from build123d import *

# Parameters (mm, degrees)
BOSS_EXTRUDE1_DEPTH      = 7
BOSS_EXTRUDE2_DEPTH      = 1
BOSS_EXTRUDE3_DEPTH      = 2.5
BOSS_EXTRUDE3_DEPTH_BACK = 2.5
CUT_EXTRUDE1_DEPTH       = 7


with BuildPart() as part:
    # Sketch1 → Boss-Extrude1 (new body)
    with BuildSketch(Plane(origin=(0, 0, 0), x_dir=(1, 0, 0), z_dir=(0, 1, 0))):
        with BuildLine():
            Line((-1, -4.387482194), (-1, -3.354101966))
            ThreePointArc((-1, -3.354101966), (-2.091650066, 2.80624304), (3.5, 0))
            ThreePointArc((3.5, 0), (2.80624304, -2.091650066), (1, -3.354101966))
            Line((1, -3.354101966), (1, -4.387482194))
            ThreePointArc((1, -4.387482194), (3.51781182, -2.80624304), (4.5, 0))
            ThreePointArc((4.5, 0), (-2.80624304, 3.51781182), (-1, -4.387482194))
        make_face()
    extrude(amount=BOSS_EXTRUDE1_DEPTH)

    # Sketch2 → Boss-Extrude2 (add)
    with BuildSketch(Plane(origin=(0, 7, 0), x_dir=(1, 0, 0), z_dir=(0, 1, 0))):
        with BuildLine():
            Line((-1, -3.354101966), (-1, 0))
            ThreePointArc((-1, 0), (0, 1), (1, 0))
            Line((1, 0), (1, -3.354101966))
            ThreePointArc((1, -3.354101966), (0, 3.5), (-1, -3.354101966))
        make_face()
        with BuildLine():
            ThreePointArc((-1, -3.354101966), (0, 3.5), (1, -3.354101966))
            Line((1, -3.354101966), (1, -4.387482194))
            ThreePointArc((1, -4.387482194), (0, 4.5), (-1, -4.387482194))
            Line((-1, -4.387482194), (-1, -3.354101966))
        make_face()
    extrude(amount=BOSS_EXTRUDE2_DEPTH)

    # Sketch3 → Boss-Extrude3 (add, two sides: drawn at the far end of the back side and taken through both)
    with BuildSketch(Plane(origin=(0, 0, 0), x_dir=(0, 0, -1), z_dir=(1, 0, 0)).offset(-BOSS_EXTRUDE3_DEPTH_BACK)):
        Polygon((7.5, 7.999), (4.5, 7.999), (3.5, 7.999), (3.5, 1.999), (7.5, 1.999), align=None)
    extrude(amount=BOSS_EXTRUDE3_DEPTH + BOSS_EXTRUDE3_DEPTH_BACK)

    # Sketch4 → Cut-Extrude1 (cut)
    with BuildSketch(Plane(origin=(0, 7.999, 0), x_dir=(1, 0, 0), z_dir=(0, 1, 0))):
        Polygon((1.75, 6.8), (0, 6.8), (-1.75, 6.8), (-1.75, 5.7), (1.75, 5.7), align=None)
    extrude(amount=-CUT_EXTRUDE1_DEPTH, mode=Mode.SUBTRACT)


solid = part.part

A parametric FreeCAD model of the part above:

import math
import FreeCAD as App
import Part
import Sketcher

V = App.Vector
Q = App.Units.Quantity

doc = App.newDocument("Part")
body = doc.addObject("PartDesign::Body", "Body")

# Sketch on XZ plane
sketch1 = body.newObject("Sketcher::SketchObject", "Sketch")
sketch1.AttachmentSupport = (doc.getObject("XZ_Plane"), [""])
sketch1.MapMode = "FlatFace"
sketch1.addGeometry(Part.LineSegment(V(-1, 4.4, 0), V(-1, 3.4, 0)), False)
sketch1.addGeometry(Part.ArcOfCircle(Part.Circle(V(0, 0, 0), V(0, 0, 1), 3.5), math.radians(107), math.radians(360)), False)
sketch1.addGeometry(Part.ArcOfCircle(Part.Circle(V(0, 0, 0), V(0, 0, 1), 3.5), math.radians(0), math.radians(73)), False)
sketch1.addGeometry(Part.LineSegment(V(1, 3.4, 0), V(1, 4.4, 0)), False)
sketch1.addGeometry(Part.ArcOfCircle(Part.Circle(V(0, 0, 0), V(0, 0, 1), 4.5), math.radians(0), math.radians(77)), False)
sketch1.addGeometry(Part.ArcOfCircle(Part.Circle(V(0, 0, 0), V(0, 0, 1), 4.5), math.radians(103), math.radians(360)), False)
sketch1.addConstraint(Sketcher.Constraint("Coincident", 0, 2, 1, 1))
sketch1.addConstraint(Sketcher.Constraint("Tangent", 1, 2, 2, 1))
sketch1.addConstraint(Sketcher.Constraint("Coincident", 2, 2, 3, 1))
sketch1.addConstraint(Sketcher.Constraint("Coincident", 3, 2, 4, 2))
sketch1.addConstraint(Sketcher.Constraint("Tangent", 4, 1, 5, 2))
sketch1.addConstraint(Sketcher.Constraint("Coincident", 5, 1, 0, 1))
sketch1.addConstraint(Sketcher.Constraint("Vertical", 0))
sketch1.addConstraint(Sketcher.Constraint("Vertical", 3))
sketch1.addConstraint(Sketcher.Constraint("Coincident", 1, 3, -1, 1))
sketch1.addConstraint(Sketcher.Constraint("Coincident", 4, 3, -1, 1))
sketch1.addConstraint(Sketcher.Constraint("Equal", 1, 2))
sketch1.addConstraint(Sketcher.Constraint("Equal", 4, 5))
sketch1.addConstraint(Sketcher.Constraint("PointOnObject", 1, 2, -1))
sketch1.addConstraint(Sketcher.Constraint("PointOnObject", 4, 1, -1))
sketch1.addConstraint(Sketcher.Constraint("Horizontal", 0, 2, 2, 2))
sketch1.addConstraint(Sketcher.Constraint("Radius", 1, Q("3.5 mm")))
sketch1.addConstraint(Sketcher.Constraint("Radius", 4, Q("4.5 mm")))
sketch1.addConstraint(Sketcher.Constraint("DistanceX", 0, 2, -1, 1, Q("1 mm")))
pad1 = body.newObject("PartDesign::Pad", "Pad")
pad1.Profile = sketch1
pad1.Length = 7
pad1.Reversed = True

# Sketch on XZ plane
sketch2 = body.newObject("Sketcher::SketchObject", "Sketch001")
sketch2.AttachmentSupport = (doc.getObject("XZ_Plane"), [""])
sketch2.MapMode = "FlatFace"
sketch2.AttachmentOffset = App.Placement(V(0, 0, -7), App.Rotation())
sketch2.addGeometry(Part.ArcOfCircle(Part.Circle(V(0, 0, 0), V(0, 0, 1), 1), math.radians(180), math.radians(360)), False)
sketch2.addGeometry(Part.LineSegment(V(1, 0, 0), V(1, 4.4, 0)), False)
sketch2.addGeometry(Part.ArcOfCircle(Part.Circle(V(0, 0, 0), V(0, 0, 1), 4.5), math.radians(103), math.radians(437)), False)
sketch2.addGeometry(Part.LineSegment(V(-1, 4.4, 0), V(-1, 0, 0)), False)
sketch2.addConstraint(Sketcher.Constraint("Tangent", 0, 2, 1, 1))
sketch2.addConstraint(Sketcher.Constraint("Coincident", 1, 2, 2, 2))
sketch2.addConstraint(Sketcher.Constraint("Coincident", 2, 1, 3, 1))
sketch2.addConstraint(Sketcher.Constraint("Tangent", 3, 2, 0, 1))
sketch2.addConstraint(Sketcher.Constraint("Vertical", 1))
sketch2.addConstraint(Sketcher.Constraint("Vertical", 3))
sketch2.addConstraint(Sketcher.Constraint("Coincident", 0, 3, -1, 1))
sketch2.addConstraint(Sketcher.Constraint("Coincident", 2, 3, -1, 1))
sketch2.addConstraint(Sketcher.Constraint("Radius", 0, Q("1 mm")))
sketch2.addConstraint(Sketcher.Constraint("Radius", 2, Q("4.5 mm")))
pad2 = body.newObject("PartDesign::Pad", "Pad001")
pad2.Profile = sketch2
pad2.Length = 1
pad2.Reversed = True

# Sketch on YZ plane
sketch3 = body.newObject("Sketcher::SketchObject", "Sketch002")
sketch3.AttachmentSupport = (doc.getObject("YZ_Plane"), [""])
sketch3.MapMode = "FlatFace"
sketch3.addGeometry(Part.LineSegment(V(8, -7.5, 0), V(8, -3.5, 0)), False)
sketch3.addGeometry(Part.LineSegment(V(8, -3.5, 0), V(2, -3.5, 0)), False)
sketch3.addGeometry(Part.LineSegment(V(2, -3.5, 0), V(2, -7.5, 0)), False)
sketch3.addGeometry(Part.LineSegment(V(2, -7.5, 0), V(8, -7.5, 0)), False)
sketch3.addConstraint(Sketcher.Constraint("Coincident", 0, 2, 1, 1))
sketch3.addConstraint(Sketcher.Constraint("Coincident", 1, 2, 2, 1))
sketch3.addConstraint(Sketcher.Constraint("Coincident", 2, 2, 3, 1))
sketch3.addConstraint(Sketcher.Constraint("Coincident", 3, 2, 0, 1))
sketch3.addConstraint(Sketcher.Constraint("Vertical", 0))
sketch3.addConstraint(Sketcher.Constraint("Horizontal", 1))
sketch3.addConstraint(Sketcher.Constraint("Vertical", 2))
sketch3.addConstraint(Sketcher.Constraint("Horizontal", 3))
sketch3.addConstraint(Sketcher.Constraint("DistanceX", 1, 2, 1, 1, Q("6 mm")))
sketch3.addConstraint(Sketcher.Constraint("DistanceY", 0, 1, 0, 2, Q("4 mm")))
sketch3.addConstraint(Sketcher.Constraint("DistanceY", 0, 2, -1, 1, Q("3.5 mm")))
sketch3.addConstraint(Sketcher.Constraint("DistanceX", -1, 1, 0, 2, Q("7.999 mm")))
pad3 = body.newObject("PartDesign::Pad", "Pad002")
pad3.Profile = sketch3
pad3.Type = "TwoLengths"
pad3.Length = 2.5
pad3.Length2 = 2.5

# Sketch on XZ plane
sketch4 = body.newObject("Sketcher::SketchObject", "Sketch003")
sketch4.AttachmentSupport = (doc.getObject("XZ_Plane"), [""])
sketch4.MapMode = "FlatFace"
sketch4.AttachmentOffset = App.Placement(V(0, 0, -7.999), App.Rotation())
sketch4.addGeometry(Part.LineSegment(V(1.8, -6.8, 0), V(-1.8, -6.8, 0)), False)
sketch4.addGeometry(Part.LineSegment(V(-1.8, -6.8, 0), V(-1.8, -5.7, 0)), False)
sketch4.addGeometry(Part.LineSegment(V(-1.8, -5.7, 0), V(1.8, -5.7, 0)), False)
sketch4.addGeometry(Part.LineSegment(V(1.8, -5.7, 0), V(1.8, -6.8, 0)), False)
sketch4.addConstraint(Sketcher.Constraint("Coincident", 0, 2, 1, 1))
sketch4.addConstraint(Sketcher.Constraint("Coincident", 1, 2, 2, 1))
sketch4.addConstraint(Sketcher.Constraint("Coincident", 2, 2, 3, 1))
sketch4.addConstraint(Sketcher.Constraint("Coincident", 3, 2, 0, 1))
sketch4.addConstraint(Sketcher.Constraint("Horizontal", 0))
sketch4.addConstraint(Sketcher.Constraint("Vertical", 1))
sketch4.addConstraint(Sketcher.Constraint("Horizontal", 2))
sketch4.addConstraint(Sketcher.Constraint("Vertical", 3))
sketch4.addConstraint(Sketcher.Constraint("DistanceX", 0, 2, 0, 1, Q("3.5 mm")))
sketch4.addConstraint(Sketcher.Constraint("DistanceY", 1, 1, 1, 2, Q("1.1 mm")))
sketch4.addConstraint(Sketcher.Constraint("DistanceY", 0, 2, -1, 1, Q("6.8 mm")))
sketch4.addConstraint(Sketcher.Constraint("DistanceX", 0, 2, -1, 1, Q("1.75 mm")))
pocket1 = body.newObject("PartDesign::Pocket", "Pocket")
pocket1.Profile = sketch4
pocket1.Length = 7
pocket1.Reversed = True

doc.recompute()
